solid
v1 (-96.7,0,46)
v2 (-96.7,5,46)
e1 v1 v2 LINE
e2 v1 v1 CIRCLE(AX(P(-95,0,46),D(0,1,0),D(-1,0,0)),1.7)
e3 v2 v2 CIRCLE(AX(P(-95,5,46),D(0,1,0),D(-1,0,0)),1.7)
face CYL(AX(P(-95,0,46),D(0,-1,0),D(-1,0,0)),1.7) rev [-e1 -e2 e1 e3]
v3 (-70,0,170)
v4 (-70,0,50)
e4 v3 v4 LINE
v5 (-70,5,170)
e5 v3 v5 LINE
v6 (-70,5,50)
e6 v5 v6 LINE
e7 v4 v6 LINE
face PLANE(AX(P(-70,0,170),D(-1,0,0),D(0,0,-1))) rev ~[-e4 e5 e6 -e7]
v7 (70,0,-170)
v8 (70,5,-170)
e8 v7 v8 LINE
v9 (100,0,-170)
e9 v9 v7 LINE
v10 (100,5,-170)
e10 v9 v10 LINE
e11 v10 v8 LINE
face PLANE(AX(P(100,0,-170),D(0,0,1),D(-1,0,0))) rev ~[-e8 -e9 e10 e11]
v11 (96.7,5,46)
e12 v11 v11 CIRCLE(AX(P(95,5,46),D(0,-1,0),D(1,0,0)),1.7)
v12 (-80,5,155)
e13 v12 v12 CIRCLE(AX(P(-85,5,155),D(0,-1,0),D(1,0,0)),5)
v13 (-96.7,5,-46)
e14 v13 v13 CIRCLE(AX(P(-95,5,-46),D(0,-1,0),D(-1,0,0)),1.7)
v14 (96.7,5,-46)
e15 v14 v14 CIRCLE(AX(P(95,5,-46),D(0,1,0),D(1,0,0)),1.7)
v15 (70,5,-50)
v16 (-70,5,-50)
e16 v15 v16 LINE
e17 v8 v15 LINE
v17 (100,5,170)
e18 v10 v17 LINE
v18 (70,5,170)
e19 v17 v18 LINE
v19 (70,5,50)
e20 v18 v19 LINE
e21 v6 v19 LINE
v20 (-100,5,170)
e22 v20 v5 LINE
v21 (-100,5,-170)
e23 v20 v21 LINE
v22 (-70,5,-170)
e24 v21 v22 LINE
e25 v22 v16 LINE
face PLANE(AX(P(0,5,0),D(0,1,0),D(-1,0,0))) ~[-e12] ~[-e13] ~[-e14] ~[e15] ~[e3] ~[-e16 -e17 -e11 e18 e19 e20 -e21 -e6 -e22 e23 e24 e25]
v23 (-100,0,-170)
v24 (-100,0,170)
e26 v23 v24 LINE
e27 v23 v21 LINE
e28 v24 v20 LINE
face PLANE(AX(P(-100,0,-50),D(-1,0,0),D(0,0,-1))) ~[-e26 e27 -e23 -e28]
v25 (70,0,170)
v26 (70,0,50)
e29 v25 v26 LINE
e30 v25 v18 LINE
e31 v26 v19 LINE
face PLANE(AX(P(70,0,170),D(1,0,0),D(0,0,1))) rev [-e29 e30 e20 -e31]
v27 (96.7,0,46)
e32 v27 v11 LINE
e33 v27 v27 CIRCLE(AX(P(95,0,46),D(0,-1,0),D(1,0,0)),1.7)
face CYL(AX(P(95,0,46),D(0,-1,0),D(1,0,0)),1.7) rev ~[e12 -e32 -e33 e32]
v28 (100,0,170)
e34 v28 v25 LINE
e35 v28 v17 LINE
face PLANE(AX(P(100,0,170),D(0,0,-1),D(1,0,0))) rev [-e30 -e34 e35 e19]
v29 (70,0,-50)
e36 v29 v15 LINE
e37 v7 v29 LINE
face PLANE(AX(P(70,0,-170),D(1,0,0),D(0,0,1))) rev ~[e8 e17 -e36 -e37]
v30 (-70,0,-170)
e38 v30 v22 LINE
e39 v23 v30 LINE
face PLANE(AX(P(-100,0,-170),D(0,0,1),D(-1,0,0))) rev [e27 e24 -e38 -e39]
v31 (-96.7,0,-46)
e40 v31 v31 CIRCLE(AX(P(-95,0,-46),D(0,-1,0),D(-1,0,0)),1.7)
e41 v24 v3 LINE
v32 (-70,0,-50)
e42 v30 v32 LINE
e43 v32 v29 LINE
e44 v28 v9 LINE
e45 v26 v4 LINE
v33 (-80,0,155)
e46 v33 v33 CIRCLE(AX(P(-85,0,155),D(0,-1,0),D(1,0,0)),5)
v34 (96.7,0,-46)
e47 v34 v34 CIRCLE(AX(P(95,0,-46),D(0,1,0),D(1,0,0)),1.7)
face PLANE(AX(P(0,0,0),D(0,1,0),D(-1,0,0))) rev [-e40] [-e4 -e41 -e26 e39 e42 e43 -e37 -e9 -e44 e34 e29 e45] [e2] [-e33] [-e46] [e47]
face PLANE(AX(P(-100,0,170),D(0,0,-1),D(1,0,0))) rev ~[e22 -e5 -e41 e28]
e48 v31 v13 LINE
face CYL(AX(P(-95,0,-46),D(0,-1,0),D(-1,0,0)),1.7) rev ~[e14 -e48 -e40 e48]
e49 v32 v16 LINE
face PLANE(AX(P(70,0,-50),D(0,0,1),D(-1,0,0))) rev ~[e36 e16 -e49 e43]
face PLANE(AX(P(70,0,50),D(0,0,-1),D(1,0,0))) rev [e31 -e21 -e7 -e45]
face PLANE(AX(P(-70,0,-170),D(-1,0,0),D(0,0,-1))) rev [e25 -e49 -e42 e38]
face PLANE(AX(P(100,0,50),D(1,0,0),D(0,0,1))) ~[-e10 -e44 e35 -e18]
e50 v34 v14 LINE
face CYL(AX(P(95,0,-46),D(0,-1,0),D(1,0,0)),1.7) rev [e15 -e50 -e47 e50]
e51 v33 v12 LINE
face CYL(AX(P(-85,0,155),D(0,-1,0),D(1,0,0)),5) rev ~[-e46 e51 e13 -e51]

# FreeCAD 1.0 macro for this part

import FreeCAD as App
import Part
import Sketcher

doc = App.newDocument("Part")
body = doc.addObject("PartDesign::Body", "Body")

# Sketch on XZ plane
sketch1 = doc.addObject("Sketcher::SketchObject", "Sketch")
body.addObject(sketch1)
sketch1.AttachmentSupport = (doc.XZ_Plane, [""])
sketch1.MapMode = "FlatFace"
sketch1.addGeometry(Part.LineSegment(App.Vector(-100, 0, 0), App.Vector(-100, 170, 0)), False)
sketch1.addGeometry(Part.LineSegment(App.Vector(-100, 170, 0), App.Vector(-70, 170, 0)), False)
sketch1.addGeometry(Part.LineSegment(App.Vector(-70, 170, 0), App.Vector(-70, 50, 0)), False)
sketch1.addGeometry(Part.LineSegment(App.Vector(-70, 50, 0), App.Vector(0, 50, 0)), False)
sketch1.addGeometry(Part.LineSegment(App.Vector(0, 50, 0), App.Vector(0, 0, 0)), False)
sketch1.addGeometry(Part.LineSegment(App.Vector(0, 0, 0), App.Vector(-100, 0, 0)), False)
sketch1.addGeometry(Part.Circle(App.Vector(-95, 46, 0), App.Vector(0, 0, 1), 1.7), False)
sketch1.addConstraint(Sketcher.Constraint("Coincident", 0, 2, 1, 1))
sketch1.addConstraint(Sketcher.Constraint("Coincident", 1, 2, 2, 1))
sketch1.addConstraint(Sketcher.Constraint("Coincident", 2, 2, 3, 1))
sketch1.addConstraint(Sketcher.Constraint("Coincident", 3, 2, 4, 1))
sketch1.addConstraint(Sketcher.Constraint("Coincident", 4, 2, 5, 1))
sketch1.addConstraint(Sketcher.Constraint("Coincident", 5, 2, 0, 1))
sketch1.addConstraint(Sketcher.Constraint("Vertical", 0))
sketch1.addConstraint(Sketcher.Constraint("Horizontal", 1))
sketch1.addConstraint(Sketcher.Constraint("Vertical", 2))
sketch1.addConstraint(Sketcher.Constraint("Horizontal", 3))
sketch1.addConstraint(Sketcher.Constraint("Vertical", 4))
sketch1.addConstraint(Sketcher.Constraint("Horizontal", 5))
sketch1.addConstraint(Sketcher.Constraint("Coincident", 4, 2, -1, 1))
sketch1.addConstraint(Sketcher.Constraint("Diameter", 6, 3.4))
sketch1.addConstraint(Sketcher.Constraint("DistanceX", 1, 1, 1, 2, 30.0))
sketch1.addConstraint(Sketcher.Constraint("DistanceX", 5, 2, 5, 1, 100.0))
sketch1.addConstraint(Sketcher.Constraint("DistanceY", 0, 1, 0, 2, 170.0))
sketch1.addConstraint(Sketcher.Constraint("DistanceY", 4, 2, 4, 1, 50.0))
sketch1.addConstraint(Sketcher.Constraint("DistanceX", 0, 2, 6, 3, 5.0))
sketch1.addConstraint(Sketcher.Constraint("DistanceY", 6, 3, 2, 2, 4.0))
pad1 = doc.addObject("PartDesign::Pad", "Pad")
body.addObject(pad1)
pad1.Profile = sketch1
pad1.Length = 5
pad1.Reversed = True
doc.recompute()

mirrored = doc.addObject("PartDesign::Mirrored", "Mirrored")
body.addObject(mirrored)
mirrored.Originals = [pad1]
mirrored.MirrorPlane = (doc.XY_Plane, [""])
body.Tip = mirrored
doc.recompute()

polarpattern = doc.addObject("PartDesign::PolarPattern", "PolarPattern")
body.addObject(polarpattern)
polarpattern.Originals = [pad1]
polarpattern.Axis = (doc.Y_Axis, [""])
polarpattern.Angle = 360
polarpattern.Occurrences = 2
body.Tip = polarpattern
doc.recompute()

mirrored2 = doc.addObject("PartDesign::Mirrored", "Mirrored001")
body.addObject(mirrored2)
mirrored2.Originals = [pad1]
mirrored2.MirrorPlane = (doc.YZ_Plane, [""])
body.Tip = mirrored2
doc.recompute()

mirrored3 = doc.addObject("PartDesign::Mirrored", "Mirrored002")
body.addObject(mirrored3)
mirrored3.Originals = [pad1]
mirrored3.MirrorPlane = (doc.XY_Plane, [""])
body.Tip = mirrored3

# Sketch on XZ plane
sketch2 = doc.addObject("Sketcher::SketchObject", "Sketch001")
body.addObject(sketch2)
sketch2.AttachmentSupport = (doc.XZ_Plane, [""])
sketch2.MapMode = "FlatFace"
sketch2.addGeometry(Part.Circle(App.Vector(-85, 155, 0), App.Vector(0, 0, 1), 5), False)
sketch2.addConstraint(Sketcher.Constraint("Diameter", 0, 10.0))
sketch2.addConstraint(Sketcher.Constraint("DistanceX", 0, 3, -1, 1, 85.0))
sketch2.addConstraint(Sketcher.Constraint("DistanceY", -1, 1, 0, 3, 155.0))
pocket1 = doc.addObject("PartDesign::Pocket", "Pocket")
body.addObject(pocket1)
pocket1.Profile = sketch2
pocket1.Length = 10

doc.recompute()
